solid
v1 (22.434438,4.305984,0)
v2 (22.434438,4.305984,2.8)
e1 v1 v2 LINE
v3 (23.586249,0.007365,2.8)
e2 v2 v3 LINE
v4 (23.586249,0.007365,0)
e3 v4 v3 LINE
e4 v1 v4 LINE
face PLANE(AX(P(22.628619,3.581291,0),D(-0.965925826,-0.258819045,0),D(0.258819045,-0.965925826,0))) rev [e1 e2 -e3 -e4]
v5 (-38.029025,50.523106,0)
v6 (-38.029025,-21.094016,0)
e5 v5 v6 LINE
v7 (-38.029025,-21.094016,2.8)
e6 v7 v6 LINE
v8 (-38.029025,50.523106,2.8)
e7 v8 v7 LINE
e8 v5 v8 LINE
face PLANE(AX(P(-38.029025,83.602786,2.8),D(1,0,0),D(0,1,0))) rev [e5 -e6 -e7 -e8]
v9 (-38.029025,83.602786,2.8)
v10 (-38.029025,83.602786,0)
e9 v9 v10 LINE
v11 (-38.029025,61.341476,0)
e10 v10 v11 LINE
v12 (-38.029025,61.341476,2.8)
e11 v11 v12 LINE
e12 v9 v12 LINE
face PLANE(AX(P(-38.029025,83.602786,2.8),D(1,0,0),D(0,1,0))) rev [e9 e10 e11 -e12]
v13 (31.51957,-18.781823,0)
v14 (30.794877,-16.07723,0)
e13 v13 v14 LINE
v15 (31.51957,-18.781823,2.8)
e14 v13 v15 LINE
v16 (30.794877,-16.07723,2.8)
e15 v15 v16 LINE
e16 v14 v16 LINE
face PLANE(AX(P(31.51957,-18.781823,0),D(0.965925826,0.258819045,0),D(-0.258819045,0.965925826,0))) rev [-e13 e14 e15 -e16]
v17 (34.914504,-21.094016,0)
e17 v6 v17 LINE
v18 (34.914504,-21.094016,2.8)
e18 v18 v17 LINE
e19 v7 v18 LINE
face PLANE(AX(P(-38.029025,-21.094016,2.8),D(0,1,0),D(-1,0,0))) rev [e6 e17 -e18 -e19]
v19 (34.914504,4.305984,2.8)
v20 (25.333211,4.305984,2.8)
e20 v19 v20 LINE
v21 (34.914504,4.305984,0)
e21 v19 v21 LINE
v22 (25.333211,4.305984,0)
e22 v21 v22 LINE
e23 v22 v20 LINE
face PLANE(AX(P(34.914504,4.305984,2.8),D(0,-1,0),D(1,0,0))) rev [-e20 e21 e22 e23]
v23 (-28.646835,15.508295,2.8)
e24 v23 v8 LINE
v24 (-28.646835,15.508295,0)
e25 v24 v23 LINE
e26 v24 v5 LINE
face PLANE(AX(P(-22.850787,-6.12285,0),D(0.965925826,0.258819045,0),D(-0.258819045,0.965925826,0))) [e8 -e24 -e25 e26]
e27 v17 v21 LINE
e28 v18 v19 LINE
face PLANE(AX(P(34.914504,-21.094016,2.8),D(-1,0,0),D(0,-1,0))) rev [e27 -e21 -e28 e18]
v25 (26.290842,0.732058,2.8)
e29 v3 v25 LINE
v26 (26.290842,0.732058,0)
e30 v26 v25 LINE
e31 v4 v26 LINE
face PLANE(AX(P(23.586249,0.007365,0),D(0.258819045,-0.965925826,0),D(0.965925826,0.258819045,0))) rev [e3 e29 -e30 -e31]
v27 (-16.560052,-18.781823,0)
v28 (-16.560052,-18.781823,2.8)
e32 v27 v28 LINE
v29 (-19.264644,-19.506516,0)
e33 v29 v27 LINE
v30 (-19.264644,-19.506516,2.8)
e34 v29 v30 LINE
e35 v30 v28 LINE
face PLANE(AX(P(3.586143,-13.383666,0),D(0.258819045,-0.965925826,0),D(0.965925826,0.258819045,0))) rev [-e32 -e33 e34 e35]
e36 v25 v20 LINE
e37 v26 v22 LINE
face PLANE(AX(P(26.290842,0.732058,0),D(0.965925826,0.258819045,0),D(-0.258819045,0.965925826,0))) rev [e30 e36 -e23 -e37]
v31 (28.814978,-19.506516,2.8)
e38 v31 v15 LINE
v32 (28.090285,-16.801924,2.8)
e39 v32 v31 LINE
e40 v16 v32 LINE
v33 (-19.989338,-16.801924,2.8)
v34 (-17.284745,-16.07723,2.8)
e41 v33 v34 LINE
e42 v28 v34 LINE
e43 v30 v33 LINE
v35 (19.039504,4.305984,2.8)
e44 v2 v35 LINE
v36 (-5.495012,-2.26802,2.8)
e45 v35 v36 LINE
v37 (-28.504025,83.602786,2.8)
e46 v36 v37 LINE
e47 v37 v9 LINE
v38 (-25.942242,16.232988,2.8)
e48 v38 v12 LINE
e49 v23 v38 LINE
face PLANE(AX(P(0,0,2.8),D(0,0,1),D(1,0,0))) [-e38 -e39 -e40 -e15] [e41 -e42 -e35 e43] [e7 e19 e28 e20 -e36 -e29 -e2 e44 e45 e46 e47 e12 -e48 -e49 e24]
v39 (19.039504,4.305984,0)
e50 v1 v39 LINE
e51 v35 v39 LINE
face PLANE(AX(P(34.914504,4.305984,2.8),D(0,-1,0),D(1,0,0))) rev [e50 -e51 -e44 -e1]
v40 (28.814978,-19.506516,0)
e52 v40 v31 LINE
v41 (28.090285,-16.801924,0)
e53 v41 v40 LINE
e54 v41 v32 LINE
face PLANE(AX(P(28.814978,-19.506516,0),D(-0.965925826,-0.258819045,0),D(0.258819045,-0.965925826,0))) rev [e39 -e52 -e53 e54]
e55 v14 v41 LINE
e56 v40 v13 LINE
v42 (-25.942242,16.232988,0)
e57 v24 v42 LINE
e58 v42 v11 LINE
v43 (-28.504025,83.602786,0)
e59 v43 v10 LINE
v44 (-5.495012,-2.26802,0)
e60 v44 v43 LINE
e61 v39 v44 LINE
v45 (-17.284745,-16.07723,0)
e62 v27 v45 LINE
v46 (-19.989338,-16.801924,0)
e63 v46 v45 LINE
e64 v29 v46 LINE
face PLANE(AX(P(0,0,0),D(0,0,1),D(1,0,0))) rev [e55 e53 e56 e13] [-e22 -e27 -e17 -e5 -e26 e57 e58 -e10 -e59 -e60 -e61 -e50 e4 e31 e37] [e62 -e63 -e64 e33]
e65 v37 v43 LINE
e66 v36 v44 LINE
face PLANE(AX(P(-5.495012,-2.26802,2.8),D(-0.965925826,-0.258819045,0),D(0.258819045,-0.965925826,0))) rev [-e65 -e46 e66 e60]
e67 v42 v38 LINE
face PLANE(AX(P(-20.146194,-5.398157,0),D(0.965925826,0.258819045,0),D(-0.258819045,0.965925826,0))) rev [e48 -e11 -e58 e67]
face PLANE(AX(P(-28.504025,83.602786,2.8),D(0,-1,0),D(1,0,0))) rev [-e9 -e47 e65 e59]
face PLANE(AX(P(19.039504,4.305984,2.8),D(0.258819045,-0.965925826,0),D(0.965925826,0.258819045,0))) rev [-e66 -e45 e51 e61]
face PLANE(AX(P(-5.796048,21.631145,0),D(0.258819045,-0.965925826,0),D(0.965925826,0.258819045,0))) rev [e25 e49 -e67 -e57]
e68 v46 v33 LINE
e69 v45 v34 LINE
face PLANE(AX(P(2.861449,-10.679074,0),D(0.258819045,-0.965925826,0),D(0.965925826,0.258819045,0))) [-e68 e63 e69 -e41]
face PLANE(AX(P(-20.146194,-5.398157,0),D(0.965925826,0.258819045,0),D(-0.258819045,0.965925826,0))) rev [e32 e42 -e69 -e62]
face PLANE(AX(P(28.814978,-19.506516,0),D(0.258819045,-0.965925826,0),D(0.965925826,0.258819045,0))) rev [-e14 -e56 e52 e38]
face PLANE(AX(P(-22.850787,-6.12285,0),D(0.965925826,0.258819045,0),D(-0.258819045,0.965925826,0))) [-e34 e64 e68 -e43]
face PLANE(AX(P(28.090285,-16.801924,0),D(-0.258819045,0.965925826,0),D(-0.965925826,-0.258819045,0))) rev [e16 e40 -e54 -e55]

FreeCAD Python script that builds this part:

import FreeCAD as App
import Part
import Sketcher

V = App.Vector
Q = App.Units.Quantity

doc = App.newDocument("Part")
body = doc.addObject("PartDesign::Body", "Body")

# Sketch on XY plane
sketch1 = doc.addObject("Sketcher::SketchObject", "Sketch")
body.addObject(sketch1)
sketch1.AttachmentSupport = (doc.XY_Plane, [""])
sketch1.MapMode = "FlatFace"
sketch1.addGeometry([
    Part.LineSegment(V(-38.029025, 83.602786, 0), V(-38.029025, -21.094016, 0)),  # 0
    Part.LineSegment(V(-38.029025, -21.094016, 0), V(34.914504, -21.094016, 0)),  # 1
    Part.LineSegment(V(34.914504, -21.094016, 0), V(34.914504, 4.305984, 0)),  # 2
    Part.LineSegment(V(34.914504, 4.305984, 0), V(19.039504, 4.305984, 0)),  # 3
    Part.LineSegment(V(19.039504, 4.305984, 0), V(-5.495012, -2.26802, 0)),  # 4
    Part.LineSegment(V(-5.495012, -2.26802, 0), V(-28.504025, 83.602786, 0)),  # 5
    Part.LineSegment(V(-28.504025, 83.602786, 0), V(-38.029025, 83.602786, 0)),  # 6
], False)
sketch1.addConstraint([
    Sketcher.Constraint("Coincident", 0, 2, 1, 1),
    Sketcher.Constraint("Coincident", 1, 2, 2, 1),
    Sketcher.Constraint("Coincident", 2, 2, 3, 1),
    Sketcher.Constraint("Coincident", 3, 2, 4, 1),
    Sketcher.Constraint("Coincident", 4, 2, 5, 1),
    Sketcher.Constraint("Coincident", 5, 2, 6, 1),
    Sketcher.Constraint("Coincident", 6, 2, 0, 1),
    Sketcher.Constraint("Vertical", 0),
    Sketcher.Constraint("Horizontal", 1),
    Sketcher.Constraint("Vertical", 2),
    Sketcher.Constraint("Horizontal", 3),
    Sketcher.Constraint("Horizontal", 6),
    Sketcher.Constraint("Perpendicular", 4, 5),
    Sketcher.Constraint("DistanceY", 2, 1, 2, 2, Q("1 in")),
    Sketcher.Constraint("Distance", 4, Q("1 in")),
    Sketcher.Constraint("Angle", 4, Q("-165 deg")),
    Sketcher.Constraint("Distance", 5, Q("3.5 in")),
    Sketcher.Constraint("DistanceX", 3, 2, 3, 1, Q("0.625 in")),
    Sketcher.Constraint("DistanceX", 6, 2, 6, 1, Q("0.375 in")),
    Sketcher.Constraint("DistanceX", 4, 2, -1, 1, 5.495012),
    Sketcher.Constraint("DistanceY", 4, 2, -1, 1, 2.26802),
])
pad1 = doc.addObject("PartDesign::Pad", "Pad")
body.addObject(pad1)
pad1.Profile = sketch1
pad1.Length = 2.8

# Sketch on XY plane
sketch2 = doc.addObject("Sketcher::SketchObject", "Sketch001")
body.addObject(sketch2)
sketch2.AttachmentSupport = (doc.XY_Plane, [""])
sketch2.MapMode = "FlatFace"
sketch2.AttachmentOffset = App.Placement(V(0, 0, 2.8), App.Rotation())
sketch2.addGeometry([
    Part.LineSegment(V(-19.264644, -19.506516, 0), V(-16.560052, -18.781823, 0)),  # 0
    Part.LineSegment(V(-16.560052, -18.781823, 0), V(-17.284745, -16.07723, 0)),  # 1
    Part.LineSegment(V(-17.284745, -16.07723, 0), V(-19.989338, -16.801924, 0)),  # 2
    Part.LineSegment(V(-19.989338, -16.801924, 0), V(-19.264644, -19.506516, 0)),  # 3
    Part.LineSegment(V(-28.646835, 15.508295, 0), V(-25.942242, 16.232988, 0)),  # 4
    Part.LineSegment(V(-25.942242, 16.232988, 0), V(-35.324433, 51.2478, 0)),  # 5
    Part.LineSegment(V(-35.324433, 51.2478, 0), V(-38.029025, 61.341476, 0)),  # 6
    Part.LineSegment(V(-38.029025, 61.341476, 0), V(-38.029025, 50.523106, 0)),  # 7
    Part.LineSegment(V(-38.029025, 50.523106, 0), V(-28.646835, 15.508295, 0)),  # 8
], False)
sketch2.addConstraint([
    Sketcher.Constraint("Coincident", 0, 2, 1, 1),
    Sketcher.Constraint("Coincident", 1, 2, 2, 1),
    Sketcher.Constraint("Coincident", 2, 2, 3, 1),
    Sketcher.Constraint("Coincident", 3, 2, 0, 1),
    Sketcher.Constraint("Coincident", 4, 2, 5, 1),
    Sketcher.Constraint("Coincident", 5, 2, 6, 1),
    Sketcher.Constraint("Coincident", 6, 2, 7, 1),
    Sketcher.Constraint("Coincident", 7, 2, 8, 1),
    Sketcher.Constraint("Coincident", 8, 2, 4, 1),
    Sketcher.Constraint("Vertical", 7),
    Sketcher.Constraint("Perpendicular", 0, 1),
    Sketcher.Constraint("Perpendicular", 1, 2),
    Sketcher.Constraint("Perpendicular", 2, 3),
    Sketcher.Constraint("Perpendicular", 3, 4),
    Sketcher.Constraint("Perpendicular", 4, 5),
    Sketcher.Constraint("Parallel", 5, 6),
    Sketcher.Constraint("Parallel", 6, 8),
    Sketcher.Constraint("Equal", 0, 1),
    Sketcher.Constraint("Equal", 3, 4),
    Sketcher.Constraint("Equal", 5, 8),
    Sketcher.Constraint("Angle", 0, Q("15 deg")),
    Sketcher.Constraint("Distance", 0, 2.8),
    Sketcher.Constraint("Distance", 5, 36.25),
    Sketcher.Constraint("DistanceY", -1, 1, 5, 2, 51.2478),
    Sketcher.Constraint("DistanceX", 4, 2, 3, 2, 6.677598),
    Sketcher.Constraint("DistanceY", 2, 2, 6, 2, 78.143399),
    Sketcher.Constraint("DistanceX", 0, 2, -1, 1, 16.560052),
])
pocket1 = doc.addObject("PartDesign::Pocket", "Pocket")
body.addObject(pocket1)
pocket1.Profile = sketch2
pocket1.Type = "ThroughAll"

# Sketch on XY plane
sketch3 = doc.addObject("Sketcher::SketchObject", "Sketch002")
body.addObject(sketch3)
sketch3.AttachmentSupport = (doc.XY_Plane, [""])
sketch3.MapMode = "FlatFace"
sketch3.AttachmentOffset = App.Placement(V(0, 0, 2.8), App.Rotation())
sketch3.addGeometry([
    Part.LineSegment(V(28.814978, -19.506516, 0), V(31.51957, -18.781823, 0)),  # 0
    Part.LineSegment(V(31.51957, -18.781823, 0), V(30.794877, -16.07723, 0)),  # 1
    Part.LineSegment(V(30.794877, -16.07723, 0), V(28.090285, -16.801924, 0)),  # 2
    Part.LineSegment(V(28.090285, -16.801924, 0), V(28.814978, -19.506516, 0)),  # 3
    Part.LineSegment(V(23.586249, 0.007365, 0), V(26.290842, 0.732058, 0)),  # 4
    Part.LineSegment(V(26.290842, 0.732058, 0), V(25.333211, 4.305984, 0)),  # 5
    Part.LineSegment(V(25.333211, 4.305984, 0), V(22.434438, 4.305984, 0)),  # 6
    Part.LineSegment(V(22.434438, 4.305984, 0), V(22.628619, 3.581291, 0)),  # 7
    Part.LineSegment(V(22.628619, 3.581291, 0), V(23.586249, 0.007365, 0)),  # 8
], False)
sketch3.addConstraint([
    Sketcher.Constraint("Coincident", 0, 2, 1, 1),
    Sketcher.Constraint("Coincident", 1, 2, 2, 1),
    Sketcher.Constraint("Coincident", 2, 2, 3, 1),
    Sketcher.Constraint("Coincident", 3, 2, 0, 1),
    Sketcher.Constraint("Coincident", 4, 2, 5, 1),
    Sketcher.Constraint("Coincident", 5, 2, 6, 1),
    Sketcher.Constraint("Coincident", 6, 2, 7, 1),
    Sketcher.Constraint("Coincident", 7, 2, 8, 1),
    Sketcher.Constraint("Coincident", 8, 2, 4, 1),
    Sketcher.Constraint("Horizontal", 6),
    Sketcher.Constraint("Perpendicular", 0, 1),
    Sketcher.Constraint("Perpendicular", 1, 2),
    Sketcher.Constraint("Perpendicular", 2, 3),
    Sketcher.Constraint("Perpendicular", 3, 4),
    Sketcher.Constraint("Perpendicular", 4, 5),
    Sketcher.Constraint("Parallel", 5, 7),
    Sketcher.Constraint("Parallel", 7, 8),
    Sketcher.Constraint("Equal", 0, 1),
    Sketcher.Constraint("Equal", 3, 4),
    Sketcher.Constraint("Equal", 5, 8),
    Sketcher.Constraint("Angle", 0, Q("15 deg")),
    Sketcher.Constraint("DistanceY", 3, 2, 5, 2, Q("0.9375 in")),
    Sketcher.Constraint("Distance", 0, 2.8),
    Sketcher.Constraint("Distance", 5, 3.7),
    Sketcher.Constraint("DistanceX", -1, 1, 0, 2, 31.51957),
    Sketcher.Constraint("DistanceY", 1, 2, -1, 1, 16.07723),
    Sketcher.Constraint("DistanceX", -1, 1, 4, 2, 26.290842),
])
pocket2 = doc.addObject("PartDesign::Pocket", "Pocket001")
body.addObject(pocket2)
pocket2.Profile = sketch3
pocket2.Type = "ThroughAll"

doc.recompute()
